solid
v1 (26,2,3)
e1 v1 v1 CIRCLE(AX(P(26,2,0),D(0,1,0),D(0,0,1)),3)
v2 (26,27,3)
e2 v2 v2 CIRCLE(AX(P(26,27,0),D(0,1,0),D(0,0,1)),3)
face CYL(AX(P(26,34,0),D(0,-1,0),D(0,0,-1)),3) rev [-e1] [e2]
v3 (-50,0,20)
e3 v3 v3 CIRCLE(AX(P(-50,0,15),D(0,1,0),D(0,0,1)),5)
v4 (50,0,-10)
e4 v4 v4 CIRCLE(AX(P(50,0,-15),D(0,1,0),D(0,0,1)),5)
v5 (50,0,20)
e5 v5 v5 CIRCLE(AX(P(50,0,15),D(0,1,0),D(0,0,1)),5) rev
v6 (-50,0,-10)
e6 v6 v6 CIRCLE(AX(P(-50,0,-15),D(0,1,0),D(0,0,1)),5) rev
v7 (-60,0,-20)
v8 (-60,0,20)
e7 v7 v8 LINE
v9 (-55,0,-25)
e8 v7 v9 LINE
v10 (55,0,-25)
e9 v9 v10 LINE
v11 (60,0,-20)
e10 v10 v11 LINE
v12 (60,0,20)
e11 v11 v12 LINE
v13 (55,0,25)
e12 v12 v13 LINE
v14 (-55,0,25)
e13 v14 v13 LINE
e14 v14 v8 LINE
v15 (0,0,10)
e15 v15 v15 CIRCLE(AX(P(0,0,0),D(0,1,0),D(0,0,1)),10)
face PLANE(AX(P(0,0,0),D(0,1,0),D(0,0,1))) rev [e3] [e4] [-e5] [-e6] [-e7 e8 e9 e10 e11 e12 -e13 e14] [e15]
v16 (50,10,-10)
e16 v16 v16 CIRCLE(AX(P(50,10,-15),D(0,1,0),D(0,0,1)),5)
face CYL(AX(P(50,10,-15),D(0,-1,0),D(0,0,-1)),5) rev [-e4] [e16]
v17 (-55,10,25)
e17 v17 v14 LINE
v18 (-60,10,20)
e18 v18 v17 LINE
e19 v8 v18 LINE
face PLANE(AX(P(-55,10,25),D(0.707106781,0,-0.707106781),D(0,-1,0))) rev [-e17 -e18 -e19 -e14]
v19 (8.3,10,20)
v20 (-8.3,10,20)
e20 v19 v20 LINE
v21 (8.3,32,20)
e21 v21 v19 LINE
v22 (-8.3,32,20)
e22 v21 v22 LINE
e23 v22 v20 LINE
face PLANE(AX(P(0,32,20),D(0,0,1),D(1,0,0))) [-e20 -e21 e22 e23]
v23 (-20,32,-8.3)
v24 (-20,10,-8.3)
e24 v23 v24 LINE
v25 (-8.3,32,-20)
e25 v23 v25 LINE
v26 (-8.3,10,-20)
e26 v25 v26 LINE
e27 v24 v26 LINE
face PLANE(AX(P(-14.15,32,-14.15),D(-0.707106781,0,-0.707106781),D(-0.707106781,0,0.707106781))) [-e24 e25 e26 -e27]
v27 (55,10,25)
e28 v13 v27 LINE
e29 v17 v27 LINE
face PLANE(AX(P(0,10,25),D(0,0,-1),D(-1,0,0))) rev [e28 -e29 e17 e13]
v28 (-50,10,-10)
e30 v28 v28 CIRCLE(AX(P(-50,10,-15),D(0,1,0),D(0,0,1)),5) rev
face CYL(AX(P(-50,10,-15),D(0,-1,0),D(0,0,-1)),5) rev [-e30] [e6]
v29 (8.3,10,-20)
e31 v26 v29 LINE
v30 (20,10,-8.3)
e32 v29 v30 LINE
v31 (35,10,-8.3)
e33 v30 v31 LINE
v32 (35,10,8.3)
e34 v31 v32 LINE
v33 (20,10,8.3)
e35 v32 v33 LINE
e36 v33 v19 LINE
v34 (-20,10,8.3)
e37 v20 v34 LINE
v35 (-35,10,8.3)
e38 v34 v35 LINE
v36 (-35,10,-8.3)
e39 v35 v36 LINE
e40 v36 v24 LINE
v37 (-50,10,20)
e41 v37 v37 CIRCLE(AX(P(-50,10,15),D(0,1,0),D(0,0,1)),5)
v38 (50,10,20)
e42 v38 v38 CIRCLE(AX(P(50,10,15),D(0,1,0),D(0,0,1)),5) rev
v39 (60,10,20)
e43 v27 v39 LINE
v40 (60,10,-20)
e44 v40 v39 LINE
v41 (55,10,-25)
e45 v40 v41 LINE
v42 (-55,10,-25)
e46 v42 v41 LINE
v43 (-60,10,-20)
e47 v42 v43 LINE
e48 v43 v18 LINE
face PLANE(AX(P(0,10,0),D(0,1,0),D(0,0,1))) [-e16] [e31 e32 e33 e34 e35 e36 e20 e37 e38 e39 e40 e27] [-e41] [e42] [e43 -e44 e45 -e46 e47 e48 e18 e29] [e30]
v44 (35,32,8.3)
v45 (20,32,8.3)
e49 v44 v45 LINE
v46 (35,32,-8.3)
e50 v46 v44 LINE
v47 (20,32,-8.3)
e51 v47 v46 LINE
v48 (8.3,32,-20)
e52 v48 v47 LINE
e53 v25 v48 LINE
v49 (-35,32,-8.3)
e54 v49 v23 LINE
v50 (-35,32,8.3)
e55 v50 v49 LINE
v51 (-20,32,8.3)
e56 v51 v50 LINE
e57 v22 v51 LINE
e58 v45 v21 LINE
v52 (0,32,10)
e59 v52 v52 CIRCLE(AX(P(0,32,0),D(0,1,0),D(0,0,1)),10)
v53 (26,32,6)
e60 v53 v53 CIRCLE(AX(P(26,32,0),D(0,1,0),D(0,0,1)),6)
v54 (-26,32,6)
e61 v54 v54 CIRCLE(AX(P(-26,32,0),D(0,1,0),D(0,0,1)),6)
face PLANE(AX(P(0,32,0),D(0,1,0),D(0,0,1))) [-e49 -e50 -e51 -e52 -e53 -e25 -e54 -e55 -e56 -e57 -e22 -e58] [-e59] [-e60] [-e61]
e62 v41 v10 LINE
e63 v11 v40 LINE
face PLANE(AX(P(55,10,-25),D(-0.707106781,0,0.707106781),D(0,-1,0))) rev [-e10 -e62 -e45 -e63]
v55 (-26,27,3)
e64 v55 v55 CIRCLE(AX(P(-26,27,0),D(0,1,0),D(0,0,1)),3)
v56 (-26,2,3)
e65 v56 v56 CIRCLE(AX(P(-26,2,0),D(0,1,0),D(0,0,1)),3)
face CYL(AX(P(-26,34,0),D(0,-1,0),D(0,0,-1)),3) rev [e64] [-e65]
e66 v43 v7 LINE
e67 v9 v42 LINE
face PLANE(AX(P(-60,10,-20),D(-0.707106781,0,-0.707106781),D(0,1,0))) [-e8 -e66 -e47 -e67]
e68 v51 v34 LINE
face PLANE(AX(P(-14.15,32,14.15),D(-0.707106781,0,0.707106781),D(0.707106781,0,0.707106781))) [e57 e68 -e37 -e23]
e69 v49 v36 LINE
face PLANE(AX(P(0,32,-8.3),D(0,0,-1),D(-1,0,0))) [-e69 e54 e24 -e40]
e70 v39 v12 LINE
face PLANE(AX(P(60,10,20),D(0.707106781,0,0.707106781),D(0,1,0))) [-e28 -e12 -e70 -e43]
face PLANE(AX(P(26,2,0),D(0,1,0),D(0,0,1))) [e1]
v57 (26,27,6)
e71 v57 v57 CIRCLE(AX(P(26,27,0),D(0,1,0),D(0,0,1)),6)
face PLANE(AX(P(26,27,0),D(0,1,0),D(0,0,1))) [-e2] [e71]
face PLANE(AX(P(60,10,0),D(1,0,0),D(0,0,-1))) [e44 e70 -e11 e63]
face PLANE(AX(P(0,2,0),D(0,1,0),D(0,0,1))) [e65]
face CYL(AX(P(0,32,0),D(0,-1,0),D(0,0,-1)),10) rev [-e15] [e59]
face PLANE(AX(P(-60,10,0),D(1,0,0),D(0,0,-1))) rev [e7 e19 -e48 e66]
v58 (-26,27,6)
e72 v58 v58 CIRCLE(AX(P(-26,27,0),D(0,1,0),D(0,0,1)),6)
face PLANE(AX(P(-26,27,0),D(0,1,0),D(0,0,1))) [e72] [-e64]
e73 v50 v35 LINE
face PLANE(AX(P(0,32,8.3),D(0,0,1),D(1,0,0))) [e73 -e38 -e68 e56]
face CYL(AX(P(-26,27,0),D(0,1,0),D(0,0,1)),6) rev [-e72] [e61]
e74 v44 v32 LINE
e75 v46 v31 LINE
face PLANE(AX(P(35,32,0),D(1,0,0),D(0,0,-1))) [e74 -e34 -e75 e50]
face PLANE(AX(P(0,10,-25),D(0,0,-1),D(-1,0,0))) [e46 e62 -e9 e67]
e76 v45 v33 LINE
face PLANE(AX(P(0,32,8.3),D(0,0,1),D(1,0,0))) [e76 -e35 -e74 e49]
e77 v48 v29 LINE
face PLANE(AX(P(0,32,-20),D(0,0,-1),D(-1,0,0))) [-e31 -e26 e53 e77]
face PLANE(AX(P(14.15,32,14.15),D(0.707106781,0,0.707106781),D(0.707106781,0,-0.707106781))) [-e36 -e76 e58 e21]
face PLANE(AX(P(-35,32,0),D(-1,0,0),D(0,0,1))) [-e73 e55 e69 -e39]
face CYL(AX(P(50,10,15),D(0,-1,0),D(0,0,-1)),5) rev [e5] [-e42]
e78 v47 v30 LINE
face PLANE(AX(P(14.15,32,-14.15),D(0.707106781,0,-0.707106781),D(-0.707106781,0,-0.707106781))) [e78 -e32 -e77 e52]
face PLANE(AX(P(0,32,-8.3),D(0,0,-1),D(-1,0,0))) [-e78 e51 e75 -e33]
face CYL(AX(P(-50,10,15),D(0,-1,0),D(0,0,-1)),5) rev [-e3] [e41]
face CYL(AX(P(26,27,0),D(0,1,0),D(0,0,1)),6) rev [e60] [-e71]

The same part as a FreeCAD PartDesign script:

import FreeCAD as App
import Part
import Sketcher
from FreeCAD import Vector


def edges_at(feature, points):
    """Names of the edges that pass closest to the given points."""
    edges = feature.Shape.Edges
    near = lambda p: min(range(len(edges)), key=lambda i: edges[i].distToShape(Part.Vertex(*p))[0])
    return sorted({f"Edge{near(p) + 1}" for p in points})


def add_polygon(sketch, points):
    """Adds a closed chain of lines whose ends are joined by coincident constraints."""
    first, n = sketch.GeometryCount, len(points)
    for a, b in zip(points, points[1:] + points[:1]):
        sketch.addGeometry(Part.LineSegment(App.Vector(*a, 0), App.Vector(*b, 0)), False)
    for i in range(n):
        sketch.addConstraint(Sketcher.Constraint("Coincident", first + i, 2, first + (i + 1) % n, 1))

doc = App.newDocument("Part")
body = doc.addObject("PartDesign::Body", "Body")

# Sketch on XZ plane
sketch1 = body.newObject("Sketcher::SketchObject", "Sketch")
sketch1.AttachmentSupport = (doc.getObject("XZ_Plane"), [""])
sketch1.MapMode = "FlatFace"
add_polygon(sketch1, [(-60, -25), (-60, 25), (60, 25), (60, -25)])  # lines 0-3
sketch1.addGeometry(Part.Circle(Vector(-50, 15, 0), Vector(0, 0, 1), 5), False)  # 4
sketch1.addGeometry(Part.Circle(Vector(50, 15, 0), Vector(0, 0, 1), 5), False)  # 5
sketch1.addGeometry(Part.Circle(Vector(-50, -15, 0), Vector(0, 0, 1), 5), False)  # 6
add_polygon(sketch1, [(8.3, 20), (-8.3, 20), (-20, 8.3), (-35, 8.3), (-35, -8.3), (-20, -8.3), (-8.3, -20), (8.3, -20), (20, -8.3), (35, -8.3), (35, 8.3), (20, 8.3)])  # lines 7-18
sketch1.addGeometry(Part.Circle(Vector(50, -15, 0), Vector(0, 0, 1), 5), False)  # 19
sketch1.addConstraint([
    Sketcher.Constraint("Vertical", 0),
    Sketcher.Constraint("Horizontal", 1),
    Sketcher.Constraint("Vertical", 2),
    Sketcher.Constraint("Horizontal", 3),
    Sketcher.Constraint("Horizontal", 7),
    Sketcher.Constraint("Horizontal", 9),
    Sketcher.Constraint("Vertical", 10),
    Sketcher.Constraint("Horizontal", 11),
    Sketcher.Constraint("Horizontal", 13),
    Sketcher.Constraint("Horizontal", 15),
    Sketcher.Constraint("Vertical", 16),
    Sketcher.Constraint("Horizontal", 17),
    Sketcher.Constraint("Equal", 4, 5),
    Sketcher.Constraint("Equal", 5, 6),
    Sketcher.Constraint("Equal", 6, 19),
    Sketcher.Constraint("Symmetric", 5, 3, 6, 3, -1, 1),
    Sketcher.Constraint("Symmetric", 4, 3, 19, 3, -1, 1),
    Sketcher.Constraint("Symmetric", 0, 2, 2, 2, -1, 1),
    Sketcher.Constraint("Symmetric", 7, 2, 13, 2, -1, 1),
    Sketcher.Constraint("Symmetric", 8, 2, 14, 2, -1, 1),
    Sketcher.Constraint("Symmetric", 10, 2, 16, 2, -1, 1),
    Sketcher.Constraint("Symmetric", 4, 3, 5, 3, -2),
    Sketcher.Constraint("Symmetric", 11, 2, 14, 2, -2),
    Sketcher.Constraint("Perpendicular", 8, 12),
    Sketcher.Constraint("Perpendicular", 14, 18),
    Sketcher.Constraint("Vertical", 7, 2, 12, 2),
    Sketcher.Constraint("Vertical", 14, 2, 17, 2),
    Sketcher.Constraint("Equal", 13, 10),
    Sketcher.Constraint("Diameter", 4, 10.0),
    Sketcher.Constraint("DistanceX", 1, 1, 1, 2, 120.0),
    Sketcher.Constraint("DistanceX", 9, 2, 9, 1, 15.0),
    Sketcher.Constraint("DistanceY", 0, 1, 0, 2, 50.0),
    Sketcher.Constraint("DistanceX", 7, 2, 7, 1, 16.6),
    Sketcher.Constraint("DistanceX", 4, 3, -1, 1, 50.0),
    Sketcher.Constraint("DistanceY", -1, 1, 4, 3, 15.0),
    Sketcher.Constraint("DistanceY", -1, 1, 7, 2, 20.0),
])
pad1 = body.newObject("PartDesign::Pad", "Pad")
pad1.Profile = sketch1
pad1.Length = 10
pad1.Reversed = True

# Sketch on XZ plane
sketch2 = body.newObject("Sketcher::SketchObject", "Sketch001")
sketch2.AttachmentSupport = (doc.getObject("XZ_Plane"), [""])
sketch2.MapMode = "FlatFace"
add_polygon(sketch2, [(-35, 8.3), (-20, 8.3), (-8.3, 20), (8.3, 20), (20, 8.3), (35, 8.3), (35, -8.3), (20, -8.3), (8.3, -20), (-8.3, -20), (-20, -8.3), (-35, -8.3)])  # lines 0-11
sketch2.addGeometry(Part.Circle(Vector(0, 0, 0), Vector(0, 0, 1), 10), False)  # 12
sketch2.addConstraint([
    Sketcher.Constraint("Horizontal", 0),
    Sketcher.Constraint("Horizontal", 2),
    Sketcher.Constraint("Horizontal", 4),
    Sketcher.Constraint("Vertical", 5),
    Sketcher.Constraint("Horizontal", 6),
    Sketcher.Constraint("Horizontal", 8),
    Sketcher.Constraint("Horizontal", 10),
    Sketcher.Constraint("Vertical", 11),
    Sketcher.Constraint("Coincident", 12, 3, -1, 1),
    Sketcher.Constraint("Symmetric", 0, 2, 6, 2, -1, 1),
    Sketcher.Constraint("Symmetric", 1, 2, 7, 2, -1, 1),
    Sketcher.Constraint("Symmetric", 3, 2, 9, 2, -1, 1),
    Sketcher.Constraint("Symmetric", 0, 2, 3, 2, -2),
    Sketcher.Constraint("Perpendicular", 1, 3),
    Sketcher.Constraint("Perpendicular", 7, 9),
    Sketcher.Constraint("Vertical", 2, 2, 7, 2),
    Sketcher.Constraint("Equal", 0, 4),
    Sketcher.Constraint("Equal", 8, 5),
    Sketcher.Constraint("Diameter", 12, 20.0),
    Sketcher.Constraint("DistanceX", 0, 1, 0, 2, 15.0),
    Sketcher.Constraint("DistanceX", 2, 1, 2, 2, 16.6),
    Sketcher.Constraint("DistanceX", 0, 2, -1, 1, 20.0),
])
pad2 = body.newObject("PartDesign::Pad", "Pad001")
pad2.Profile = sketch2
pad2.Length = 32
pad2.Reversed = True

# Sketch on XZ plane
sketch3 = body.newObject("Sketcher::SketchObject", "Sketch002")
sketch3.AttachmentSupport = (doc.getObject("XZ_Plane"), [""])
sketch3.MapMode = "FlatFace"
sketch3.AttachmentOffset = App.Placement(Vector(0, 0, -2), App.Rotation())
sketch3.addGeometry([
    Part.Circle(Vector(-26, 0, 0), Vector(0, 0, 1), 3),
    Part.Circle(Vector(26, 0, 0), Vector(0, 0, 1), 3),
], False)
sketch3.addConstraint([
    Sketcher.Constraint("Equal", 0, 1),
    Sketcher.Constraint("Symmetric", 0, 3, 1, 3, -1, 1),
    Sketcher.Constraint("PointOnObject", 0, 3, -1),
    Sketcher.Constraint("Diameter", 0, 6.0),
    Sketcher.Constraint("DistanceX", 0, 3, -1, 1, 26.0),
])
pocket1 = body.newObject("PartDesign::Pocket", "Pocket")
pocket1.Profile = sketch3
pocket1.Length = 32

# Sketch on XZ plane
sketch4 = body.newObject("Sketcher::SketchObject", "Sketch003")
sketch4.AttachmentSupport = (doc.getObject("XZ_Plane"), [""])
sketch4.MapMode = "FlatFace"
sketch4.AttachmentOffset = App.Placement(Vector(0, 0, -32), App.Rotation())
sketch4.addGeometry([
    Part.Circle(Vector(-26, 0, 0), Vector(0, 0, 1), 6),
    Part.Circle(Vector(26, 0, 0), Vector(0, 0, 1), 6),
], False)
sketch4.addConstraint([
    Sketcher.Constraint("Equal", 0, 1),
    Sketcher.Constraint("Symmetric", 0, 3, 1, 3, -1, 1),
    Sketcher.Constraint("PointOnObject", 0, 3, -1),
    Sketcher.Constraint("Diameter", 0, 12.0),
    Sketcher.Constraint("DistanceX", 0, 3, -1, 1, 26.0),
])
pocket2 = body.newObject("PartDesign::Pocket", "Pocket001")
pocket2.Profile = sketch4
pocket2.Length = 5
pocket2.Reversed = True
doc.recompute()

chamfer = body.newObject("PartDesign::Chamfer", "Chamfer")
chamfer.Base = (pocket2, edges_at(pocket2, [
    (60, 5, 25),
    (-60, 5, 25),
    (-60, 5, -25),
    (60, 5, -25),
]))
chamfer.Size = 5

doc.recompute()
